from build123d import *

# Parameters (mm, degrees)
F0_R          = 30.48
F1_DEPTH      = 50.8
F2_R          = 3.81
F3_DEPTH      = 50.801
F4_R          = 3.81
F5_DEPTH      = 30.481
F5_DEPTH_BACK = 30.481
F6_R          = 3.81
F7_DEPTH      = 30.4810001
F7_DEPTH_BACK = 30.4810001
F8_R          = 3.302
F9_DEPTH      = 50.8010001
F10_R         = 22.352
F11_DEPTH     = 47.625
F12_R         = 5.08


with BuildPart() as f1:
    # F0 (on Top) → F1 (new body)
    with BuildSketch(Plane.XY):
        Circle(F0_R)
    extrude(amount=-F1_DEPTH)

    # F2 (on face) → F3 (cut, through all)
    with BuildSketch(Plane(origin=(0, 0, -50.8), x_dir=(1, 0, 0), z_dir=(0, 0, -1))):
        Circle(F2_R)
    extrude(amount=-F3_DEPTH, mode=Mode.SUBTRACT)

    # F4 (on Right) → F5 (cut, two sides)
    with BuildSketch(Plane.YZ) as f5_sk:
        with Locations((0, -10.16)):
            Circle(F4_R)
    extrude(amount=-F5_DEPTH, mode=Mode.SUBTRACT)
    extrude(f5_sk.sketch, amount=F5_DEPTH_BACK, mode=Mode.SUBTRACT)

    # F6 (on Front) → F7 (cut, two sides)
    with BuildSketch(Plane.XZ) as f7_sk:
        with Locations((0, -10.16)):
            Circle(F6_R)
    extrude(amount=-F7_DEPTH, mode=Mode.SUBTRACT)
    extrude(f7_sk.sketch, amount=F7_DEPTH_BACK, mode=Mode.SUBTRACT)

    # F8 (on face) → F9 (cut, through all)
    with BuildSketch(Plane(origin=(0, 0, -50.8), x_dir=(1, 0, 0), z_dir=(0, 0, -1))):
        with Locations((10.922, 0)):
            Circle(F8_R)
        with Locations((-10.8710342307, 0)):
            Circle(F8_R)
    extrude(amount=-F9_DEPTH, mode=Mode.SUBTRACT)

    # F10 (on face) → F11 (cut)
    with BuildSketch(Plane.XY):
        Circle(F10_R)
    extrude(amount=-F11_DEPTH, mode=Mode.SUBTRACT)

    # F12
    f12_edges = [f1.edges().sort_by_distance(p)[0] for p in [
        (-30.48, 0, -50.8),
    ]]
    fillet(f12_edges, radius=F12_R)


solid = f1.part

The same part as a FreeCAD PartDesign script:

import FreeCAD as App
import Part
import Sketcher
Q = App.Units.Quantity


def edges_at(feature, points):
    """Names of the edges that pass closest to the given points."""
    edges = feature.Shape.Edges
    near = lambda p: min(range(len(edges)), key=lambda i: edges[i].distToShape(Part.Vertex(*p))[0])
    return sorted({f"Edge{near(p) + 1}" for p in points})

doc = App.newDocument("Part")
body = doc.addObject("PartDesign::Body", "Body")

sketch1 = doc.addObject("Sketcher::SketchObject", "Sketch")
body.addObject(sketch1)
sketch1.AttachmentSupport = (doc.XY_Plane, [""])
sketch1.MapMode = "FlatFace"
sketch1.addGeometry(Part.Circle(App.Vector(0, 0, 0), App.Vector(0, 0, 1), 30.48), False)
sketch1.addConstraint([
    Sketcher.Constraint("Coincident", 0, 3, -1, 1),
    Sketcher.Constraint("Diameter", 0, Q("2.4 in")),
])
pad1 = doc.addObject("PartDesign::Pad", "Pad")
body.addObject(pad1)
pad1.Profile = sketch1
pad1.Length = Q("2 in")
pad1.Reversed = True

sketch2 = doc.addObject("Sketcher::SketchObject", "Sketch001")
body.addObject(sketch2)
sketch2.AttachmentSupport = (doc.XY_Plane, [""])
sketch2.MapMode = "FlatFace"
sketch2.AttachmentOffset = App.Placement(App.Vector(0, 0, -2 * 25.4), App.Rotation())
sketch2.addGeometry(Part.Circle(App.Vector(0, 0, 0), App.Vector(0, 0, 1), 3.81), False)
sketch2.addConstraint([
    Sketcher.Constraint("Coincident", 0, 3, -1, 1),
    Sketcher.Constraint("Diameter", 0, Q("0.3 in")),
])
pocket1 = doc.addObject("PartDesign::Pocket", "Pocket")
body.addObject(pocket1)
pocket1.Profile = sketch2
pocket1.Type = "ThroughAll"
pocket1.Reversed = True

sketch3 = doc.addObject("Sketcher::SketchObject", "Sketch002")
body.addObject(sketch3)
sketch3.AttachmentSupport = (doc.YZ_Plane, [""])
sketch3.MapMode = "FlatFace"
sketch3.addGeometry(Part.Circle(App.Vector(0, -10.16, 0), App.Vector(0, 0, 1), 3.81), False)
sketch3.addConstraint([
    Sketcher.Constraint("PointOnObject", 0, 3, -2),
    Sketcher.Constraint("Diameter", 0, Q("0.3 in")),
    Sketcher.Constraint("DistanceY", 0, 3, -1, 1, Q("0.4 in")),
])
pocket2 = doc.addObject("PartDesign::Pocket", "Pocket001")
body.addObject(pocket2)
pocket2.Profile = sketch3
pocket2.Type = "ThroughAll"
pocket2.Midplane = True

sketch4 = doc.addObject("Sketcher::SketchObject", "Sketch003")
body.addObject(sketch4)
sketch4.AttachmentSupport = (doc.XZ_Plane, [""])
sketch4.MapMode = "FlatFace"
sketch4.addGeometry(Part.Circle(App.Vector(0, -10.16, 0), App.Vector(0, 0, 1), 3.81), False)
sketch4.addConstraint([
    Sketcher.Constraint("PointOnObject", 0, 3, -2),
    Sketcher.Constraint("Diameter", 0, Q("0.3 in")),
    Sketcher.Constraint("DistanceY", 0, 3, -1, 1, Q("0.4 in")),
])
pocket3 = doc.addObject("PartDesign::Pocket", "Pocket002")
body.addObject(pocket3)
pocket3.Profile = sketch4
pocket3.Type = "ThroughAll"
pocket3.Midplane = True

sketch5 = doc.addObject("Sketcher::SketchObject", "Sketch004")
body.addObject(sketch5)
sketch5.AttachmentSupport = (doc.XY_Plane, [""])
sketch5.MapMode = "FlatFace"
sketch5.AttachmentOffset = App.Placement(App.Vector(0, 0, -2 * 25.4), App.Rotation())
sketch5.addGeometry([
    Part.Circle(App.Vector(10.922, 0, 0), App.Vector(0, 0, 1), 3.302),
    Part.Circle(App.Vector(-10.871034, 0, 0), App.Vector(0, 0, 1), 3.302),
], False)
sketch5.addConstraint([
    Sketcher.Constraint("Equal", 0, 1),
    Sketcher.Constraint("PointOnObject", 0, 3, -1),
    Sketcher.Constraint("PointOnObject", 1, 3, -1),
    Sketcher.Constraint("Diameter", 0, Q("0.26 in")),
    Sketcher.Constraint("DistanceX", -1, 1, 0, 3, Q("0.43 in")),
    Sketcher.Constraint("DistanceX", 1, 3, -1, 1, 10.871034),
])
pocket4 = doc.addObject("PartDesign::Pocket", "Pocket003")
body.addObject(pocket4)
pocket4.Profile = sketch5
pocket4.Type = "ThroughAll"
pocket4.Reversed = True

sketch6 = doc.addObject("Sketcher::SketchObject", "Sketch005")
body.addObject(sketch6)
sketch6.AttachmentSupport = (doc.XY_Plane, [""])
sketch6.MapMode = "FlatFace"
sketch6.addGeometry(Part.Circle(App.Vector(0, 0, 0), App.Vector(0, 0, 1), 22.352), False)
sketch6.addConstraint([
    Sketcher.Constraint("Coincident", 0, 3, -1, 1),
    Sketcher.Constraint("Diameter", 0, Q("1.76 in")),
])
pocket5 = doc.addObject("PartDesign::Pocket", "Pocket004")
body.addObject(pocket5)
pocket5.Profile = sketch6
pocket5.Length = Q("1.875 in")
doc.recompute()

fillet = doc.addObject("PartDesign::Fillet", "Fillet")
body.addObject(fillet)
fillet.Base = (pocket5, edges_at(pocket5, [(-30.48, 0, -50.8)]))
fillet.Radius = Q("0.2 in")

doc.recompute()
